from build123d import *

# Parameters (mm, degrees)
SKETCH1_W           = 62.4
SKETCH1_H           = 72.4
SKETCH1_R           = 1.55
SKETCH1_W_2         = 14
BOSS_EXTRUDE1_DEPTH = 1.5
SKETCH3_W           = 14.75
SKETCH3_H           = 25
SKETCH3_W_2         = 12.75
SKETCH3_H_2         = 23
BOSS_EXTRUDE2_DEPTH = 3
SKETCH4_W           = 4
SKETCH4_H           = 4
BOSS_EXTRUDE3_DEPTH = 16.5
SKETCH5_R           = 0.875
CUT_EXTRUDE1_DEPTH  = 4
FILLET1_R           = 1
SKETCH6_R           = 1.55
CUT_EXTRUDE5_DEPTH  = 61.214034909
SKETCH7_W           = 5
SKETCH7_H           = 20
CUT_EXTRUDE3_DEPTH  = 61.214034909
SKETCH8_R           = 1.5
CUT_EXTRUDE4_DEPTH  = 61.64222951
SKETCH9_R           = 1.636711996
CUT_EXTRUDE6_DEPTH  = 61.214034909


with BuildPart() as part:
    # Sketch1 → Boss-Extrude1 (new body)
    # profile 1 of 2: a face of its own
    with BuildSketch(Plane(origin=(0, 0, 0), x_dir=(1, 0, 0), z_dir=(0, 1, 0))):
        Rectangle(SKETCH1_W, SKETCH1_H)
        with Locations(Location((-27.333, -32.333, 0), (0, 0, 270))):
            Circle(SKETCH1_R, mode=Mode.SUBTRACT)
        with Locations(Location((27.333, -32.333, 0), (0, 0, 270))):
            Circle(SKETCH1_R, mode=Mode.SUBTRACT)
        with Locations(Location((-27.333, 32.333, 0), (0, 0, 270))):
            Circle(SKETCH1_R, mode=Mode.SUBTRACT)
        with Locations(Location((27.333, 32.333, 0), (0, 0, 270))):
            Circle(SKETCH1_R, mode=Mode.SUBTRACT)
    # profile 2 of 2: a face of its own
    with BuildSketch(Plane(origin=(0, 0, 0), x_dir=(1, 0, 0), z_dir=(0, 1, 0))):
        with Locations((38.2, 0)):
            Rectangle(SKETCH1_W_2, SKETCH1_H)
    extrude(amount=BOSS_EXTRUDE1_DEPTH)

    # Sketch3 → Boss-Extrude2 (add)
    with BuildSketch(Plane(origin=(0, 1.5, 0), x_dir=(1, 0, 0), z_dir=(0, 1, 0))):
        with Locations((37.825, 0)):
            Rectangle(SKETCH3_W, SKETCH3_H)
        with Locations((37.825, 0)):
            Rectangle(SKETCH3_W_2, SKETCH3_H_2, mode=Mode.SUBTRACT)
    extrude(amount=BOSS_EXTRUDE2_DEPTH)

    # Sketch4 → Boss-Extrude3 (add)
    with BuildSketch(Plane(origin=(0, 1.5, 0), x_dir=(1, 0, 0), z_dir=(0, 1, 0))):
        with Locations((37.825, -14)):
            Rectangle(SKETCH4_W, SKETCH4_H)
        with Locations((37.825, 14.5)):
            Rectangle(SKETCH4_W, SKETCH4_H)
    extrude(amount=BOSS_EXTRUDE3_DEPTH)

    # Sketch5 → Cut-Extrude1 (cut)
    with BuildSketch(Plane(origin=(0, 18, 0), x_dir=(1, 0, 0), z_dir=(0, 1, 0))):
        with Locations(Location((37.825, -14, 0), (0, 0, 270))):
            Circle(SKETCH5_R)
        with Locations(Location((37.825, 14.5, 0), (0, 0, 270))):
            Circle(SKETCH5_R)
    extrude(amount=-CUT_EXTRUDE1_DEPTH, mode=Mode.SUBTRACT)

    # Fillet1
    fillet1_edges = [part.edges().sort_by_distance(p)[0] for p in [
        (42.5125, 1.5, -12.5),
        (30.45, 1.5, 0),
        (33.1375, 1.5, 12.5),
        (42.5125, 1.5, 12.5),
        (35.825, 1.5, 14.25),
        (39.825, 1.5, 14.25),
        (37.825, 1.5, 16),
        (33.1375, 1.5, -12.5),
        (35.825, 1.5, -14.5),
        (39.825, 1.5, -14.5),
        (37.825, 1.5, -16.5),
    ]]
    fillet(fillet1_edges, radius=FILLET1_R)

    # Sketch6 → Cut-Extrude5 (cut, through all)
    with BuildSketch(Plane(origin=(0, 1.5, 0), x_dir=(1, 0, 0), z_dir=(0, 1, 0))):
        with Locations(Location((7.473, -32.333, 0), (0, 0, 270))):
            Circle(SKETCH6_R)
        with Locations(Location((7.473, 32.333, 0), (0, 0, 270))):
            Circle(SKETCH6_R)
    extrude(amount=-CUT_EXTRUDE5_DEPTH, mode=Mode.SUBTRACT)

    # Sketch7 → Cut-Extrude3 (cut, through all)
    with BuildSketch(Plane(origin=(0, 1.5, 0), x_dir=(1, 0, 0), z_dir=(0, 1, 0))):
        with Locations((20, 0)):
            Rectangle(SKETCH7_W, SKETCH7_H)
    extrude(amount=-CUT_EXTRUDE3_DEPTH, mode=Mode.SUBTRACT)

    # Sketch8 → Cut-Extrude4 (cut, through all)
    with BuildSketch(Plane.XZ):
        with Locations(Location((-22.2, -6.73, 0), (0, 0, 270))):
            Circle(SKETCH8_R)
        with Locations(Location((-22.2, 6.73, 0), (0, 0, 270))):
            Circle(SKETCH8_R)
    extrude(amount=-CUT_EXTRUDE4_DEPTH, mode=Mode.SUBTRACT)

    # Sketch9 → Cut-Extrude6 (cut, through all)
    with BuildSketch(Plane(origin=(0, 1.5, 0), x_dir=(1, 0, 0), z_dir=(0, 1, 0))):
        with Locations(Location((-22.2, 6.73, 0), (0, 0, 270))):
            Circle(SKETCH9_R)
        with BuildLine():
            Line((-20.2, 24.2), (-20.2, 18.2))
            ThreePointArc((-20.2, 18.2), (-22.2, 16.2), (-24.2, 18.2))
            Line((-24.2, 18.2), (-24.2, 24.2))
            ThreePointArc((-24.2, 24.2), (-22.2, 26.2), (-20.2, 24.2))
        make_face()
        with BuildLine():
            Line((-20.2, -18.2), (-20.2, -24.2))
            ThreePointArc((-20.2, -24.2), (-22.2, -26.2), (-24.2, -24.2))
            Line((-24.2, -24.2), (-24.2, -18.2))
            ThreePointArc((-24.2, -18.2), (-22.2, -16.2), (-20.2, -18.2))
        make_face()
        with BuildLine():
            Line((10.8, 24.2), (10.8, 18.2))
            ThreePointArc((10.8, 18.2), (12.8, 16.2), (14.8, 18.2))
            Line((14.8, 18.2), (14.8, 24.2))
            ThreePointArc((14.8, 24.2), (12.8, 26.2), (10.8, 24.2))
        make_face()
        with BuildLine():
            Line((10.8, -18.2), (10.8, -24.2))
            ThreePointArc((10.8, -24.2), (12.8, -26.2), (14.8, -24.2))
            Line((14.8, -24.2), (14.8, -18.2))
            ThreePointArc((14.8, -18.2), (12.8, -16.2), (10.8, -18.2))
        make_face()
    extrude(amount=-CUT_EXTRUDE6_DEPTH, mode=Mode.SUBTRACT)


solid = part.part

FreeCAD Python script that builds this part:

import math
import FreeCAD as App
import Part
import Sketcher


def edges_at(feature, points):
    """Names of the edges that pass closest to the given points."""
    edges = feature.Shape.Edges
    near = lambda p: min(range(len(edges)), key=lambda i: edges[i].distToShape(Part.Vertex(*p))[0])
    return sorted({f"Edge{near(p) + 1}" for p in points})


def add_polygon(sketch, points):
    """Adds a closed chain of lines whose ends are joined by coincident constraints."""
    first, n = sketch.GeometryCount, len(points)
    for a, b in zip(points, points[1:] + points[:1]):
        sketch.addGeometry(Part.LineSegment(App.Vector(*a, 0), App.Vector(*b, 0)), False)
    for i in range(n):
        sketch.addConstraint(Sketcher.Constraint("Coincident", first + i, 2, first + (i + 1) % n, 1))

doc = App.newDocument("Part")
params = doc.addObject("Spreadsheet::Sheet", "Params")
for row, (alias, value) in enumerate([
    ("sketch1_diameter", "3.1 mm"),
    ("sketch1_width", "76.4 mm"),
    ("sketch1_height", "72.4 mm"),
    ("pad1_length", "1.5 mm"),
    ("sketch2_height", "25 mm"),
    ("sketch2_height2", "23 mm"),
    ("sketch2_width", "14.75 mm"),
    ("pad2_length", "3 mm"),
    ("sketch3_width", "4 mm"),
    ("pad3_length", "16.5 mm"),
    ("sketch4_diameter", "1.75 mm"),
    ("pocket1_length", "4 mm"),
    ("fillet_radius", "1 mm"),
    ("sketch5_diameter", "3.1 mm"),
    ("sketch6_width", "5 mm"),
    ("sketch6_height", "20 mm"),
    ("sketch7_diameter", "3 mm"),
    ("sketch8_radius", "2 mm"),
    ("sketch8_height", "6 mm"),
], start=1):
    params.set(f"A{row}", alias)
    params.set(f"B{row}", "=" + value)
    params.setAlias(f"B{row}", alias)

body = doc.addObject("PartDesign::Body", "Body")

sketch1 = doc.addObject("Sketcher::SketchObject", "Sketch")
body.addObject(sketch1)
sketch1.AttachmentSupport = (doc.XZ_Plane, [""])
sketch1.MapMode = "FlatFace"
add_polygon(sketch1, [(-31.2, -36.2), (-31.2, 36.2), (45.2, 36.2), (45.2, -36.2)])
sketch1.addGeometry(Part.Circle(App.Vector(-27.3, 32.3, 0), App.Vector(0, 0, 1), 1.6), False)
sketch1.addGeometry(Part.Circle(App.Vector(27.3, 32.3, 0), App.Vector(0, 0, 1), 1.6), False)
sketch1.addGeometry(Part.Circle(App.Vector(-27.3, -32.3, 0), App.Vector(0, 0, 1), 1.6), False)
sketch1.addGeometry(Part.Circle(App.Vector(27.3, -32.3, 0), App.Vector(0, 0, 1), 1.6), False)
sketch1.addConstraint(Sketcher.Constraint("Vertical", 0))
sketch1.addConstraint(Sketcher.Constraint("Horizontal", 1))
sketch1.addConstraint(Sketcher.Constraint("Vertical", 2))
sketch1.addConstraint(Sketcher.Constraint("Horizontal", 3))
sketch1.addConstraint(Sketcher.Constraint("Equal", 4, 5))
sketch1.addConstraint(Sketcher.Constraint("Equal", 5, 6))
sketch1.addConstraint(Sketcher.Constraint("Equal", 6, 7))
sketch1.addConstraint(Sketcher.Constraint("Symmetric", 5, 3, 6, 3, -1, 1))
sketch1.addConstraint(Sketcher.Constraint("Symmetric", 4, 3, 7, 3, -1, 1))
sketch1.addConstraint(Sketcher.Constraint("Symmetric", 4, 3, 5, 3, -2))
sketch1.addConstraint(Sketcher.Constraint("Diameter", 4, 3.1))
sketch1.addConstraint(Sketcher.Constraint("DistanceX", 1, 1, 1, 2, 76.4))
sketch1.addConstraint(Sketcher.Constraint("DistanceY", 0, 1, 0, 2, 72.4))
sketch1.addConstraint(Sketcher.Constraint("DistanceX", 0, 2, -1, 1, 31.2))
sketch1.addConstraint(Sketcher.Constraint("DistanceY", -1, 1, 0, 2, 36.2))
sketch1.addConstraint(Sketcher.Constraint("DistanceX", 4, 3, -1, 1, 27.333))
sketch1.addConstraint(Sketcher.Constraint("DistanceY", -1, 1, 4, 3, 32.333))
sketch1.setExpression("Constraints[14]", "Params.sketch1_diameter")
sketch1.setExpression("Constraints[15]", "Params.sketch1_width")
sketch1.setExpression("Constraints[16]", "Params.sketch1_height")
pad1 = doc.addObject("PartDesign::Pad", "Pad")
body.addObject(pad1)
pad1.Profile = sketch1
pad1.setExpression("Length", "Params.pad1_length")
pad1.Reversed = True

sketch2 = doc.addObject("Sketcher::SketchObject", "Sketch001")
body.addObject(sketch2)
sketch2.AttachmentSupport = (doc.XZ_Plane, [""])
sketch2.MapMode = "FlatFace"
sketch2.AttachmentOffset = App.Placement(App.Vector(0, 0, -1.5), App.Rotation())
add_polygon(sketch2, [(30, -12), (30, 12), (45, 12), (45, -12)])
add_polygon(sketch2, [(44, 12), (31, 12), (31, -12), (44, -12)])
sketch2.addConstraint(Sketcher.Constraint("Vertical", 0))
sketch2.addConstraint(Sketcher.Constraint("Horizontal", 1))
sketch2.addConstraint(Sketcher.Constraint("Vertical", 2))
sketch2.addConstraint(Sketcher.Constraint("Horizontal", 3))
sketch2.addConstraint(Sketcher.Constraint("Horizontal", 4))
sketch2.addConstraint(Sketcher.Constraint("Vertical", 5))
sketch2.addConstraint(Sketcher.Constraint("Horizontal", 6))
sketch2.addConstraint(Sketcher.Constraint("Vertical", 7))
sketch2.addConstraint(Sketcher.Constraint("DistanceY", 0, 1, 0, 2, 25.0))
sketch2.addConstraint(Sketcher.Constraint("DistanceY", 5, 2, 5, 1, 23.0))
sketch2.addConstraint(Sketcher.Constraint("DistanceX", 0, 2, 4, 2, 1.0))
sketch2.addConstraint(Sketcher.Constraint("DistanceY", 4, 2, 0, 2, 1.0))
sketch2.addConstraint(Sketcher.Constraint("DistanceX", 6, 2, 2, 2, 1.0))
sketch2.addConstraint(Sketcher.Constraint("DistanceX", 1, 1, 1, 2, 14.75))
sketch2.addConstraint(Sketcher.Constraint("DistanceY", -1, 1, 0, 2, 12.5))
sketch2.addConstraint(Sketcher.Constraint("DistanceX", -1, 1, 1, 2, 45.2))
sketch2.setExpression("Constraints[16]", "Params.sketch2_height")
sketch2.setExpression("Constraints[17]", "Params.sketch2_height2")
sketch2.setExpression("Constraints[21]", "Params.sketch2_width")
pad2 = doc.addObject("PartDesign::Pad", "Pad001")
body.addObject(pad2)
pad2.Profile = sketch2
pad2.setExpression("Length", "Params.pad2_length")
pad2.Reversed = True

sketch3 = doc.addObject("Sketcher::SketchObject", "Sketch002")
body.addObject(sketch3)
sketch3.AttachmentSupport = (doc.XZ_Plane, [""])
sketch3.MapMode = "FlatFace"
sketch3.AttachmentOffset = App.Placement(App.Vector(0, 0, -1.5), App.Rotation())
add_polygon(sketch3, [(35.8, 12), (35.8, 16), (39.8, 16), (39.8, 12)])
add_polygon(sketch3, [(35.8, -16.5), (35.8, -12.5), (39.8, -12.5), (39.8, -16.5)])
sketch3.addConstraint(Sketcher.Constraint("Vertical", 0))
sketch3.addConstraint(Sketcher.Constraint("Horizontal", 1))
sketch3.addConstraint(Sketcher.Constraint("Vertical", 2))
sketch3.addConstraint(Sketcher.Constraint("Horizontal", 3))
sketch3.addConstraint(Sketcher.Constraint("Vertical", 4))
sketch3.addConstraint(Sketcher.Constraint("Horizontal", 5))
sketch3.addConstraint(Sketcher.Constraint("Vertical", 6))
sketch3.addConstraint(Sketcher.Constraint("Horizontal", 7))
sketch3.addConstraint(Sketcher.Constraint("Vertical", 3, 2, 4, 2))
sketch3.addConstraint(Sketcher.Constraint("Vertical", 2, 2, 5, 2))
sketch3.addConstraint(Sketcher.Constraint("Equal", 7, 0))
sketch3.addConstraint(Sketcher.Constraint("Equal", 2, 4))
sketch3.addConstraint(Sketcher.Constraint("DistanceX", 1, 1, 1, 2, 4.0))
sketch3.addConstraint(Sketcher.Constraint("DistanceY", -1, 1, 0, 2, 16.0))
sketch3.addConstraint(Sketcher.Constraint("DistanceY", 4, 2, -1, 1, 12.5))
sketch3.addConstraint(Sketcher.Constraint("DistanceX", -1, 1, 0, 2, 35.825))
sketch3.setExpression("Constraints[20]", "Params.sketch3_width")
pad3 = doc.addObject("PartDesign::Pad", "Pad002")
body.addObject(pad3)
pad3.Profile = sketch3
pad3.setExpression("Length", "Params.pad3_length")
pad3.Reversed = True

sketch4 = doc.addObject("Sketcher::SketchObject", "Sketch003")
body.addObject(sketch4)
sketch4.AttachmentSupport = (doc.XZ_Plane, [""])
sketch4.MapMode = "FlatFace"
sketch4.AttachmentOffset = App.Placement(App.Vector(0, 0, -18), App.Rotation())
sketch4.addGeometry(Part.Circle(App.Vector(37.8, 14, 0), App.Vector(0, 0, 1), 0.9), False)
sketch4.addGeometry(Part.Circle(App.Vector(37.8, -14.5, 0), App.Vector(0, 0, 1), 0.9), False)
sketch4.addConstraint(Sketcher.Constraint("Equal", 0, 1))
sketch4.addConstraint(Sketcher.Constraint("Vertical", 0, 3, 1, 3))
sketch4.addConstraint(Sketcher.Constraint("Diameter", 0, 1.75))
sketch4.addConstraint(Sketcher.Constraint("DistanceY", -1, 1, 0, 3, 14.0))
sketch4.addConstraint(Sketcher.Constraint("DistanceY", 1, 3, -1, 1, 14.5))
sketch4.addConstraint(Sketcher.Constraint("DistanceX", -1, 1, 0, 3, 37.825))
sketch4.setExpression("Constraints[2]", "Params.sketch4_diameter")
pocket1 = doc.addObject("PartDesign::Pocket", "Pocket")
body.addObject(pocket1)
pocket1.Profile = sketch4
pocket1.setExpression("Length", "Params.pocket1_length")
pocket1.Reversed = True
doc.recompute()

fillet = doc.addObject("PartDesign::Fillet", "Fillet")
body.addObject(fillet)
fillet.Base = (pocket1, edges_at(pocket1, [
    (42.513, 1.5, -12.5),
    (30.45, 1.5, 0),
    (33.138, 1.5, 12.5),
    (42.513, 1.5, 12.5),
    (35.825, 1.5, 14.25),
    (39.825, 1.5, 14.25),
    (37.825, 1.5, 16),
    (33.138, 1.5, -12.5),
    (35.825, 1.5, -14.5),
    (39.825, 1.5, -14.5),
    (37.825, 1.5, -16.5),
]))
fillet.setExpression("Radius", "Params.fillet_radius")

sketch5 = doc.addObject("Sketcher::SketchObject", "Sketch004")
body.addObject(sketch5)
sketch5.AttachmentSupport = (doc.XZ_Plane, [""])
sketch5.MapMode = "FlatFace"
sketch5.AttachmentOffset = App.Placement(App.Vector(0, 0, -1.5), App.Rotation())
sketch5.addGeometry(Part.Circle(App.Vector(7.5, 32.3, 0), App.Vector(0, 0, 1), 1.6), False)
sketch5.addGeometry(Part.Circle(App.Vector(7.5, -32.3, 0), App.Vector(0, 0, 1), 1.6), False)
sketch5.addConstraint(Sketcher.Constraint("Equal", 0, 1))
sketch5.addConstraint(Sketcher.Constraint("Symmetric", 0, 3, 1, 3, -1))
sketch5.addConstraint(Sketcher.Constraint("Diameter", 0, 3.1))
sketch5.addConstraint(Sketcher.Constraint("DistanceX", -1, 1, 0, 3, 7.473))
sketch5.addConstraint(Sketcher.Constraint("DistanceY", -1, 1, 0, 3, 32.333))
sketch5.setExpression("Constraints[2]", "Params.sketch5_diameter")
pocket2 = doc.addObject("PartDesign::Pocket", "Pocket001")
body.addObject(pocket2)
pocket2.Profile = sketch5
pocket2.Type = "ThroughAll"
pocket2.Reversed = True

sketch6 = doc.addObject("Sketcher::SketchObject", "Sketch005")
body.addObject(sketch6)
sketch6.AttachmentSupport = (doc.XZ_Plane, [""])
sketch6.MapMode = "FlatFace"
sketch6.AttachmentOffset = App.Placement(App.Vector(0, 0, -1.5), App.Rotation())
add_polygon(sketch6, [(18, -10), (18, 10), (22, 10), (22, -10)])
sketch6.addConstraint(Sketcher.Constraint("Vertical", 0))
sketch6.addConstraint(Sketcher.Constraint("Horizontal", 1))
sketch6.addConstraint(Sketcher.Constraint("Vertical", 2))
sketch6.addConstraint(Sketcher.Constraint("Horizontal", 3))
sketch6.addConstraint(Sketcher.Constraint("DistanceX", 1, 1, 1, 2, 5.0))
sketch6.addConstraint(Sketcher.Constraint("DistanceY", 0, 1, 0, 2, 20.0))
sketch6.addConstraint(Sketcher.Constraint("DistanceY", -1, 1, 0, 2, 10.0))
sketch6.addConstraint(Sketcher.Constraint("DistanceX", -1, 1, 0, 2, 17.5))
sketch6.setExpression("Constraints[8]", "Params.sketch6_width")
sketch6.setExpression("Constraints[9]", "Params.sketch6_height")
pocket3 = doc.addObject("PartDesign::Pocket", "Pocket002")
body.addObject(pocket3)
pocket3.Profile = sketch6
pocket3.Type = "ThroughAll"
pocket3.Reversed = True

sketch7 = doc.addObject("Sketcher::SketchObject", "Sketch006")
body.addObject(sketch7)
sketch7.AttachmentSupport = (doc.XZ_Plane, [""])
sketch7.MapMode = "FlatFace"
sketch7.addGeometry(Part.Circle(App.Vector(-22.2, -6.7, 0), App.Vector(0, 0, 1), 1.5), False)
sketch7.addGeometry(Part.Circle(App.Vector(-22.2, 6.7, 0), App.Vector(0, 0, 1), 1.5), False)
sketch7.addConstraint(Sketcher.Constraint("Equal", 0, 1))
sketch7.addConstraint(Sketcher.Constraint("Symmetric", 0, 3, 1, 3, -1))
sketch7.addConstraint(Sketcher.Constraint("Diameter", 0, 3.0))
sketch7.addConstraint(Sketcher.Constraint("DistanceX", 0, 3, -1, 1, 22.2))
sketch7.addConstraint(Sketcher.Constraint("DistanceY", 0, 3, -1, 1, 6.73))
sketch7.setExpression("Constraints[2]", "Params.sketch7_diameter")
pocket4 = doc.addObject("PartDesign::Pocket", "Pocket003")
body.addObject(pocket4)
pocket4.Profile = sketch7
pocket4.Type = "ThroughAll"

sketch8 = doc.addObject("Sketcher::SketchObject", "Sketch007")
body.addObject(sketch8)
sketch8.AttachmentSupport = (doc.XZ_Plane, [""])
sketch8.MapMode = "FlatFace"
sketch8.AttachmentOffset = App.Placement(App.Vector(0, 0, -1.5), App.Rotation())
sketch8.addGeometry(Part.Circle(App.Vector(-22.2, -6.7, 0), App.Vector(0, 0, 1), 1.6), False)
sketch8.addGeometry(Part.LineSegment(App.Vector(-20.2, -18.2, 0), App.Vector(-20.2, -24.2, 0)), False)
sketch8.addGeometry(Part.ArcOfCircle(Part.Circle(App.Vector(-22.2, -24.2, 0), App.Vector(0, 0, 1), 2), math.radians(180), math.radians(360)), False)
sketch8.addGeometry(Part.LineSegment(App.Vector(-24.2, -24.2, 0), App.Vector(-24.2, -18.2, 0)), False)
sketch8.addGeometry(Part.ArcOfCircle(Part.Circle(App.Vector(-22.2, -18.2, 0), App.Vector(0, 0, 1), 2), math.radians(0), math.radians(180)), False)
sketch8.addGeometry(Part.LineSegment(App.Vector(-20.2, 24.2, 0), App.Vector(-20.2, 18.2, 0)), False)
sketch8.addGeometry(Part.ArcOfCircle(Part.Circle(App.Vector(-22.2, 18.2, 0), App.Vector(0, 0, 1), 2), math.radians(180), math.radians(360)), False)
sketch8.addGeometry(Part.LineSegment(App.Vector(-24.2, 18.2, 0), App.Vector(-24.2, 24.2, 0)), False)
sketch8.addGeometry(Part.ArcOfCircle(Part.Circle(App.Vector(-22.2, 24.2, 0), App.Vector(0, 0, 1), 2), math.radians(0), math.radians(180)), False)
sketch8.addGeometry(Part.LineSegment(App.Vector(10.8, -24.2, 0), App.Vector(10.8, -18.2, 0)), False)
sketch8.addGeometry(Part.ArcOfCircle(Part.Circle(App.Vector(12.8, -18.2, 0), App.Vector(0, 0, 1), 2), math.radians(0), math.radians(180)), False)
sketch8.addGeometry(Part.LineSegment(App.Vector(14.8, -18.2, 0), App.Vector(14.8, -24.2, 0)), False)
sketch8.addGeometry(Part.ArcOfCircle(Part.Circle(App.Vector(12.8, -24.2, 0), App.Vector(0, 0, 1), 2), math.radians(180), math.radians(360)), False)
sketch8.addGeometry(Part.LineSegment(App.Vector(10.8, 18.2, 0), App.Vector(10.8, 24.2, 0)), False)
sketch8.addGeometry(Part.ArcOfCircle(Part.Circle(App.Vector(12.8, 24.2, 0), App.Vector(0, 0, 1), 2), math.radians(0), math.radians(180)), False)
sketch8.addGeometry(Part.LineSegment(App.Vector(14.8, 24.2, 0), App.Vector(14.8, 18.2, 0)), False)
sketch8.addGeometry(Part.ArcOfCircle(Part.Circle(App.Vector(12.8, 18.2, 0), App.Vector(0, 0, 1), 2), math.radians(180), math.radians(360)), False)
sketch8.addConstraint(Sketcher.Constraint("Tangent", 1, 2, 2, 2))
sketch8.addConstraint(Sketcher.Constraint("Tangent", 2, 1, 3, 1))
sketch8.addConstraint(Sketcher.Constraint("Tangent", 3, 2, 4, 2))
sketch8.addConstraint(Sketcher.Constraint("Tangent", 4, 1, 1, 1))
sketch8.addConstraint(Sketcher.Constraint("Tangent", 5, 2, 6, 2))
sketch8.addConstraint(Sketcher.Constraint("Tangent", 6, 1, 7, 1))
sketch8.addConstraint(Sketcher.Constraint("Tangent", 7, 2, 8, 2))
sketch8.addConstraint(Sketcher.Constraint("Tangent", 8, 1, 5, 1))
sketch8.addConstraint(Sketcher.Constraint("Tangent", 9, 2, 10, 2))
sketch8.addConstraint(Sketcher.Constraint("Tangent", 10, 1, 11, 1))
sketch8.addConstraint(Sketcher.Constraint("Tangent", 11, 2, 12, 2))
sketch8.addConstraint(Sketcher.Constraint("Tangent", 12, 1, 9, 1))
sketch8.addConstraint(Sketcher.Constraint("Tangent", 13, 2, 14, 2))
sketch8.addConstraint(Sketcher.Constraint("Tangent", 14, 1, 15, 1))
sketch8.addConstraint(Sketcher.Constraint("Tangent", 15, 2, 16, 2))
sketch8.addConstraint(Sketcher.Constraint("Tangent", 16, 1, 13, 1))
sketch8.addConstraint(Sketcher.Constraint("Vertical", 1))
sketch8.addConstraint(Sketcher.Constraint("Vertical", 3))
sketch8.addConstraint(Sketcher.Constraint("Vertical", 5))
sketch8.addConstraint(Sketcher.Constraint("Vertical", 7))
sketch8.addConstraint(Sketcher.Constraint("Vertical", 9))
sketch8.addConstraint(Sketcher.Constraint("Vertical", 11))
sketch8.addConstraint(Sketcher.Constraint("Vertical", 13))
sketch8.addConstraint(Sketcher.Constraint("Vertical", 15))
sketch8.addConstraint(Sketcher.Constraint("Equal", 4, 6))
sketch8.addConstraint(Sketcher.Constraint("Equal", 8, 10))
sketch8.addConstraint(Sketcher.Constraint("Equal", 12, 14))
sketch8.addConstraint(Sketcher.Constraint("Symmetric", 4, 3, 6, 3, -1))
sketch8.addConstraint(Sketcher.Constraint("Symmetric", 12, 3, 14, 3, -1))
sketch8.addConstraint(Sketcher.Constraint("Horizontal", 4, 3, 10, 3))
sketch8.addConstraint(Sketcher.Constraint("Horizontal", 2, 3, 12, 3))
sketch8.addConstraint(Sketcher.Constraint("Horizontal", 8, 3, 14, 3))
sketch8.addConstraint(Sketcher.Constraint("Horizontal", 6, 3, 16, 3))
sketch8.addConstraint(Sketcher.Constraint("Vertical", 0, 3, 2, 3))
sketch8.addConstraint(Sketcher.Constraint("Radius", 2, 2.0))
sketch8.addConstraint(Sketcher.Constraint("DistanceY", 1, 2, 1, 1, 6.0))
sketch8.addConstraint(Sketcher.Constraint("DistanceX", 4, 3, 10, 3, 35.0))
sketch8.addConstraint(Sketcher.Constraint("DistanceX", 0, 3, -1, 1, 22.2))
sketch8.addConstraint(Sketcher.Constraint("DistanceY", 2, 3, -1, 1, 24.2))
sketch8.addConstraint(Sketcher.Constraint("DistanceY", 0, 3, -1, 1, 6.73))
sketch8.addConstraint(Sketcher.Constraint("Diameter", 0, 3.273424))
sketch8.setExpression("Constraints[34]", "Params.sketch8_radius")
sketch8.setExpression("Constraints[35]", "Params.sketch8_height")
pocket5 = doc.addObject("PartDesign::Pocket", "Pocket004")
body.addObject(pocket5)
pocket5.Profile = sketch8
pocket5.Type = "ThroughAll"
pocket5.Reversed = True

doc.recompute()
